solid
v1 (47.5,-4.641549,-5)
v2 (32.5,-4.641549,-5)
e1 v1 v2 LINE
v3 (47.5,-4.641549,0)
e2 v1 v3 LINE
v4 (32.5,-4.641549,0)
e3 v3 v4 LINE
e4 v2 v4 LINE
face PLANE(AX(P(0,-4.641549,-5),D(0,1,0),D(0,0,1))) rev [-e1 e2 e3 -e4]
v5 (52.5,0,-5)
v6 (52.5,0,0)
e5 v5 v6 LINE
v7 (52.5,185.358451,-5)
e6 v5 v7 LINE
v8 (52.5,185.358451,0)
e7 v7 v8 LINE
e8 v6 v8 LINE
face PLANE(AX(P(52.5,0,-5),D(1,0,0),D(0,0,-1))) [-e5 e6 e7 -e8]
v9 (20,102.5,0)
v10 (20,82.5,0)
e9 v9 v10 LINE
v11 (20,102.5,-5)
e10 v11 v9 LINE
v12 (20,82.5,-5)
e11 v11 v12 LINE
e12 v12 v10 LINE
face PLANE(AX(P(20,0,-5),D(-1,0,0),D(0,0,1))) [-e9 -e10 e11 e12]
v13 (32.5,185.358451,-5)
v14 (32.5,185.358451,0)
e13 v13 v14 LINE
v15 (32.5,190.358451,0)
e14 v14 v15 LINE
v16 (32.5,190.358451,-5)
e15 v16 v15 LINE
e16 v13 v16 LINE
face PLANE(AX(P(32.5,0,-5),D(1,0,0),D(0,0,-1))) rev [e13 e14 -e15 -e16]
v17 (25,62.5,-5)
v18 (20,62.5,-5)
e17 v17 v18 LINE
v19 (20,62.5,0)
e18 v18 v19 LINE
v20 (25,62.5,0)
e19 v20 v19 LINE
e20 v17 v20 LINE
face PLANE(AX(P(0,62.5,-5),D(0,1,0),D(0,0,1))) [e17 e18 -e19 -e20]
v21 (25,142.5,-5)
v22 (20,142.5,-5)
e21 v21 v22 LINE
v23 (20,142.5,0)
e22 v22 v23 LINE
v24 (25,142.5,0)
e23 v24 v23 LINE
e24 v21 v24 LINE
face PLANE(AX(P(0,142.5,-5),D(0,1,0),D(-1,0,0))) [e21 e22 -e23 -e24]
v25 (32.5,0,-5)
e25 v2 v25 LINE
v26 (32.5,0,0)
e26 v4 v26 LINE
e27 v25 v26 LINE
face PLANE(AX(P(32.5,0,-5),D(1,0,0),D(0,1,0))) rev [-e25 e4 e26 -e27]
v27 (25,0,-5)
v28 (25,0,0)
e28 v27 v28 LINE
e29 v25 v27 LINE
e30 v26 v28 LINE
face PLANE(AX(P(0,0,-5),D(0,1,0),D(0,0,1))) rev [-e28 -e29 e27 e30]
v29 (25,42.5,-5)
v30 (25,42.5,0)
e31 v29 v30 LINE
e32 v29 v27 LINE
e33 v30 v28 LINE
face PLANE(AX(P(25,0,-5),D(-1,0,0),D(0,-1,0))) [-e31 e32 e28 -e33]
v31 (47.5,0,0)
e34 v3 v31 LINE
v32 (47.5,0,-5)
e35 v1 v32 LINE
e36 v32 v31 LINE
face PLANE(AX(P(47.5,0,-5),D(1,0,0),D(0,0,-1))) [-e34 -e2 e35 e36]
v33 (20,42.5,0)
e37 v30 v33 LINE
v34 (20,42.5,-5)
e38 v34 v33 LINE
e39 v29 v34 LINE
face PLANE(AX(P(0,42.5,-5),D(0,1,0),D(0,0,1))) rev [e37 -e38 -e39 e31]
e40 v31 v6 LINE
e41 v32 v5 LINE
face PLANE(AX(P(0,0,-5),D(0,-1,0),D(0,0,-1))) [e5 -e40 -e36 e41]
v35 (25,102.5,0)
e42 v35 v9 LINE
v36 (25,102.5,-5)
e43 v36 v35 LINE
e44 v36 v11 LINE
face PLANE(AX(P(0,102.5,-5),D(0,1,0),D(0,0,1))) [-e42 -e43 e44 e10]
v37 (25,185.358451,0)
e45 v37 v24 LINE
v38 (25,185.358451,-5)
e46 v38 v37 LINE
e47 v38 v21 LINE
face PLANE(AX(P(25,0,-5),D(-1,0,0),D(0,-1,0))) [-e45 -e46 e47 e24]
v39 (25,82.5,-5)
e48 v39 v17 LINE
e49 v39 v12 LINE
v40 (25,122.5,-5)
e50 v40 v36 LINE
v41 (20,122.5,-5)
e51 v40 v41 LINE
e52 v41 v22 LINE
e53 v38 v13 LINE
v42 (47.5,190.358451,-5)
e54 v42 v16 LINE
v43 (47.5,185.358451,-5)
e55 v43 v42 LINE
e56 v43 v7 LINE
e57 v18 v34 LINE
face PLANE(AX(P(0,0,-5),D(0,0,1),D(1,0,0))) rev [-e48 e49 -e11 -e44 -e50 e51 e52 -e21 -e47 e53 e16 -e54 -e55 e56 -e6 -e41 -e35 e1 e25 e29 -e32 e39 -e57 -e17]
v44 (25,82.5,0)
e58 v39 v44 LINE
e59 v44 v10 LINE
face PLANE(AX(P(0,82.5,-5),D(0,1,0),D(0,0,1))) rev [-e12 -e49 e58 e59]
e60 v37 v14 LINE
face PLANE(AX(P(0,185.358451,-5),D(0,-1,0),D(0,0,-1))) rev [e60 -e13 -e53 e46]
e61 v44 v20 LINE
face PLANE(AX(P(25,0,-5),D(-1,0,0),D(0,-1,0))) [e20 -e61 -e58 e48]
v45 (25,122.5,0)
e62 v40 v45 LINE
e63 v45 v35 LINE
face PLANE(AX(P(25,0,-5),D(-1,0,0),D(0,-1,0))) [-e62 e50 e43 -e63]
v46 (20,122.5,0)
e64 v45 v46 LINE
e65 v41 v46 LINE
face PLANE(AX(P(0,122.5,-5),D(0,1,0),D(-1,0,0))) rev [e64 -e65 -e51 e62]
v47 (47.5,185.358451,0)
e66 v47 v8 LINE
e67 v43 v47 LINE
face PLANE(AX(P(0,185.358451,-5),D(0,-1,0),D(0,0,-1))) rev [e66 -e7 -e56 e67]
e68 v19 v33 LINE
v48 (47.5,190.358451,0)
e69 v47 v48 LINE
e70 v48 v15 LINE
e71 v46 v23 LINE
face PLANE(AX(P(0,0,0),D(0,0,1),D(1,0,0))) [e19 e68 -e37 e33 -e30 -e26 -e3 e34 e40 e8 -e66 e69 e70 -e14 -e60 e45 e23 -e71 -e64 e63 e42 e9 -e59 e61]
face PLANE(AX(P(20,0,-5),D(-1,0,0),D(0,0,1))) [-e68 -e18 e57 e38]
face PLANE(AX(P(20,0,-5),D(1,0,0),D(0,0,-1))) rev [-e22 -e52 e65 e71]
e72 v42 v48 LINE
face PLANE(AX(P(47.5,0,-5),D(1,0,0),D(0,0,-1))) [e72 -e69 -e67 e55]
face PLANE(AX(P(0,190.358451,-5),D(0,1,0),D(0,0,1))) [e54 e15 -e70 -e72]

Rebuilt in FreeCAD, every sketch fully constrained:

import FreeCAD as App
import Part
import Sketcher

doc = App.newDocument("Part")
params = doc.addObject("Spreadsheet::Sheet", "Params")
for row, (alias, value) in enumerate([
    ("sketch1_width", "5 mm"),
    ("sketch1_width2", "15 mm"),
    ("sketch1_height", "20 mm"),
    ("sketch1_width3", "7.5 mm"),
    ("sketch1_height2", "42.5 mm"),
    ("pad1_length", "5 mm"),
], start=1):
    params.set(f"A{row}", alias)
    params.set(f"B{row}", "=" + value)
    params.setAlias(f"B{row}", alias)

body = doc.addObject("PartDesign::Body", "Body")

# Sketch on XY plane
sketch1 = body.newObject("Sketcher::SketchObject", "Sketch")
sketch1.AttachmentSupport = (doc.getObject("XY_Plane"), [""])
sketch1.MapMode = "FlatFace"
sketch1.addGeometry(Part.LineSegment(App.Vector(52.5, 185.4, 0), App.Vector(47.5, 185.4, 0)), False)
sketch1.addGeometry(Part.LineSegment(App.Vector(47.5, 185.4, 0), App.Vector(47.5, 190.4, 0)), False)
sketch1.addGeometry(Part.LineSegment(App.Vector(47.5, 190.4, 0), App.Vector(32.5, 190.4, 0)), False)
sketch1.addGeometry(Part.LineSegment(App.Vector(32.5, 190.4, 0), App.Vector(32.5, 185.4, 0)), False)
sketch1.addGeometry(Part.LineSegment(App.Vector(32.5, 185.4, 0), App.Vector(25, 185.4, 0)), False)
sketch1.addGeometry(Part.LineSegment(App.Vector(25, 185.4, 0), App.Vector(25, 142.5, 0)), False)
sketch1.addGeometry(Part.LineSegment(App.Vector(25, 142.5, 0), App.Vector(20, 142.5, 0)), False)
sketch1.addGeometry(Part.LineSegment(App.Vector(20, 142.5, 0), App.Vector(20, 122.5, 0)), False)
sketch1.addGeometry(Part.LineSegment(App.Vector(20, 122.5, 0), App.Vector(25, 122.5, 0)), False)
sketch1.addGeometry(Part.LineSegment(App.Vector(25, 122.5, 0), App.Vector(25, 102.5, 0)), False)
sketch1.addGeometry(Part.LineSegment(App.Vector(25, 102.5, 0), App.Vector(20, 102.5, 0)), False)
sketch1.addGeometry(Part.LineSegment(App.Vector(20, 102.5, 0), App.Vector(20, 82.5, 0)), False)
sketch1.addGeometry(Part.LineSegment(App.Vector(20, 82.5, 0), App.Vector(25, 82.5, 0)), False)
sketch1.addGeometry(Part.LineSegment(App.Vector(25, 82.5, 0), App.Vector(25, 62.5, 0)), False)
sketch1.addGeometry(Part.LineSegment(App.Vector(25, 62.5, 0), App.Vector(20, 62.5, 0)), False)
sketch1.addGeometry(Part.LineSegment(App.Vector(20, 62.5, 0), App.Vector(20, 42.5, 0)), False)
sketch1.addGeometry(Part.LineSegment(App.Vector(20, 42.5, 0), App.Vector(25, 42.5, 0)), False)
sketch1.addGeometry(Part.LineSegment(App.Vector(25, 42.5, 0), App.Vector(25, 0, 0)), False)
sketch1.addGeometry(Part.LineSegment(App.Vector(25, 0, 0), App.Vector(32.5, 0, 0)), False)
sketch1.addGeometry(Part.LineSegment(App.Vector(32.5, 0, 0), App.Vector(32.5, -4.6, 0)), False)
sketch1.addGeometry(Part.LineSegment(App.Vector(32.5, -4.6, 0), App.Vector(47.5, -4.6, 0)), False)
sketch1.addGeometry(Part.LineSegment(App.Vector(47.5, -4.6, 0), App.Vector(47.5, 0, 0)), False)
sketch1.addGeometry(Part.LineSegment(App.Vector(47.5, 0, 0), App.Vector(52.5, 0, 0)), False)
sketch1.addGeometry(Part.LineSegment(App.Vector(52.5, 0, 0), App.Vector(52.5, 185.4, 0)), False)
sketch1.addConstraint(Sketcher.Constraint("Coincident", 0, 2, 1, 1))
sketch1.addConstraint(Sketcher.Constraint("Coincident", 1, 2, 2, 1))
sketch1.addConstraint(Sketcher.Constraint("Coincident", 2, 2, 3, 1))
sketch1.addConstraint(Sketcher.Constraint("Coincident", 3, 2, 4, 1))
sketch1.addConstraint(Sketcher.Constraint("Coincident", 4, 2, 5, 1))
sketch1.addConstraint(Sketcher.Constraint("Coincident", 5, 2, 6, 1))
sketch1.addConstraint(Sketcher.Constraint("Coincident", 6, 2, 7, 1))
sketch1.addConstraint(Sketcher.Constraint("Coincident", 7, 2, 8, 1))
sketch1.addConstraint(Sketcher.Constraint("Coincident", 8, 2, 9, 1))
sketch1.addConstraint(Sketcher.Constraint("Coincident", 9, 2, 10, 1))
sketch1.addConstraint(Sketcher.Constraint("Coincident", 10, 2, 11, 1))
sketch1.addConstraint(Sketcher.Constraint("Coincident", 11, 2, 12, 1))
sketch1.addConstraint(Sketcher.Constraint("Coincident", 12, 2, 13, 1))
sketch1.addConstraint(Sketcher.Constraint("Coincident", 13, 2, 14, 1))
sketch1.addConstraint(Sketcher.Constraint("Coincident", 14, 2, 15, 1))
sketch1.addConstraint(Sketcher.Constraint("Coincident", 15, 2, 16, 1))
sketch1.addConstraint(Sketcher.Constraint("Coincident", 16, 2, 17, 1))
sketch1.addConstraint(Sketcher.Constraint("Coincident", 17, 2, 18, 1))
sketch1.addConstraint(Sketcher.Constraint("Coincident", 18, 2, 19, 1))
sketch1.addConstraint(Sketcher.Constraint("Coincident", 19, 2, 20, 1))
sketch1.addConstraint(Sketcher.Constraint("Coincident", 20, 2, 21, 1))
sketch1.addConstraint(Sketcher.Constraint("Coincident", 21, 2, 22, 1))
sketch1.addConstraint(Sketcher.Constraint("Coincident", 22, 2, 23, 1))
sketch1.addConstraint(Sketcher.Constraint("Coincident", 23, 2, 0, 1))
sketch1.addConstraint(Sketcher.Constraint("Horizontal", 0))
sketch1.addConstraint(Sketcher.Constraint("Vertical", 1))
sketch1.addConstraint(Sketcher.Constraint("Horizontal", 2))
sketch1.addConstraint(Sketcher.Constraint("Vertical", 3))
sketch1.addConstraint(Sketcher.Constraint("Horizontal", 4))
sketch1.addConstraint(Sketcher.Constraint("Vertical", 5))
sketch1.addConstraint(Sketcher.Constraint("Horizontal", 6))
sketch1.addConstraint(Sketcher.Constraint("Vertical", 7))
sketch1.addConstraint(Sketcher.Constraint("Horizontal", 8))
sketch1.addConstraint(Sketcher.Constraint("Vertical", 9))
sketch1.addConstraint(Sketcher.Constraint("Horizontal", 10))
sketch1.addConstraint(Sketcher.Constraint("Vertical", 11))
sketch1.addConstraint(Sketcher.Constraint("Horizontal", 12))
sketch1.addConstraint(Sketcher.Constraint("Vertical", 13))
sketch1.addConstraint(Sketcher.Constraint("Horizontal", 14))
sketch1.addConstraint(Sketcher.Constraint("Vertical", 15))
sketch1.addConstraint(Sketcher.Constraint("Horizontal", 16))
sketch1.addConstraint(Sketcher.Constraint("Vertical", 17))
sketch1.addConstraint(Sketcher.Constraint("Horizontal", 18))
sketch1.addConstraint(Sketcher.Constraint("Vertical", 19))
sketch1.addConstraint(Sketcher.Constraint("Horizontal", 20))
sketch1.addConstraint(Sketcher.Constraint("Vertical", 21))
sketch1.addConstraint(Sketcher.Constraint("Horizontal", 22))
sketch1.addConstraint(Sketcher.Constraint("Vertical", 23))
sketch1.addConstraint(Sketcher.Constraint("PointOnObject", 17, 2, -1))
sketch1.addConstraint(Sketcher.Constraint("PointOnObject", 21, 2, -1))
sketch1.addConstraint(Sketcher.Constraint("Horizontal", 0, 2, 3, 2))
sketch1.addConstraint(Sketcher.Constraint("Vertical", 5, 2, 8, 2))
sketch1.addConstraint(Sketcher.Constraint("Vertical", 7, 2, 10, 2))
sketch1.addConstraint(Sketcher.Constraint("Vertical", 9, 2, 12, 2))
sketch1.addConstraint(Sketcher.Constraint("Vertical", 11, 2, 14, 2))
sketch1.addConstraint(Sketcher.Constraint("Vertical", 13, 2, 16, 2))
sketch1.addConstraint(Sketcher.Constraint("Vertical", 3, 2, 18, 2))
sketch1.addConstraint(Sketcher.Constraint("Vertical", 1, 2, 20, 2))
sketch1.addConstraint(Sketcher.Constraint("Equal", 0, 6))
sketch1.addConstraint(Sketcher.Constraint("Equal", 22, 1))
sketch1.addConstraint(Sketcher.Constraint("Equal", 7, 9))
sketch1.addConstraint(Sketcher.Constraint("Equal", 9, 11))
sketch1.addConstraint(Sketcher.Constraint("Equal", 11, 13))
sketch1.addConstraint(Sketcher.Constraint("Equal", 13, 15))
sketch1.addConstraint(Sketcher.Constraint("DistanceX", 0, 2, 0, 1, 5.0))
sketch1.addConstraint(Sketcher.Constraint("DistanceX", 2, 2, 2, 1, 15.0))
sketch1.addConstraint(Sketcher.Constraint("DistanceY", 7, 2, 7, 1, 20.0))
sketch1.addConstraint(Sketcher.Constraint("DistanceX", 4, 2, 4, 1, 7.5))
sketch1.addConstraint(Sketcher.Constraint("DistanceY", 17, 2, 17, 1, 42.5))
sketch1.addConstraint(Sketcher.Constraint("DistanceX", -1, 1, 4, 2, 25.0))
sketch1.addConstraint(Sketcher.Constraint("DistanceY", 5, 2, 5, 1, 42.858451))
sketch1.addConstraint(Sketcher.Constraint("DistanceY", 19, 2, 19, 1, 4.641549))
sketch1.setExpression("Constraints[64]", "Params.sketch1_width")
sketch1.setExpression("Constraints[65]", "Params.sketch1_width2")
sketch1.setExpression("Constraints[66]", "Params.sketch1_height")
sketch1.setExpression("Constraints[67]", "Params.sketch1_width3")
sketch1.setExpression("Constraints[68]", "Params.sketch1_height2")
pad1 = body.newObject("PartDesign::Pad", "Pad")
pad1.Profile = sketch1
pad1.setExpression("Length", "Params.pad1_length")
pad1.Reversed = True

doc.recompute()
